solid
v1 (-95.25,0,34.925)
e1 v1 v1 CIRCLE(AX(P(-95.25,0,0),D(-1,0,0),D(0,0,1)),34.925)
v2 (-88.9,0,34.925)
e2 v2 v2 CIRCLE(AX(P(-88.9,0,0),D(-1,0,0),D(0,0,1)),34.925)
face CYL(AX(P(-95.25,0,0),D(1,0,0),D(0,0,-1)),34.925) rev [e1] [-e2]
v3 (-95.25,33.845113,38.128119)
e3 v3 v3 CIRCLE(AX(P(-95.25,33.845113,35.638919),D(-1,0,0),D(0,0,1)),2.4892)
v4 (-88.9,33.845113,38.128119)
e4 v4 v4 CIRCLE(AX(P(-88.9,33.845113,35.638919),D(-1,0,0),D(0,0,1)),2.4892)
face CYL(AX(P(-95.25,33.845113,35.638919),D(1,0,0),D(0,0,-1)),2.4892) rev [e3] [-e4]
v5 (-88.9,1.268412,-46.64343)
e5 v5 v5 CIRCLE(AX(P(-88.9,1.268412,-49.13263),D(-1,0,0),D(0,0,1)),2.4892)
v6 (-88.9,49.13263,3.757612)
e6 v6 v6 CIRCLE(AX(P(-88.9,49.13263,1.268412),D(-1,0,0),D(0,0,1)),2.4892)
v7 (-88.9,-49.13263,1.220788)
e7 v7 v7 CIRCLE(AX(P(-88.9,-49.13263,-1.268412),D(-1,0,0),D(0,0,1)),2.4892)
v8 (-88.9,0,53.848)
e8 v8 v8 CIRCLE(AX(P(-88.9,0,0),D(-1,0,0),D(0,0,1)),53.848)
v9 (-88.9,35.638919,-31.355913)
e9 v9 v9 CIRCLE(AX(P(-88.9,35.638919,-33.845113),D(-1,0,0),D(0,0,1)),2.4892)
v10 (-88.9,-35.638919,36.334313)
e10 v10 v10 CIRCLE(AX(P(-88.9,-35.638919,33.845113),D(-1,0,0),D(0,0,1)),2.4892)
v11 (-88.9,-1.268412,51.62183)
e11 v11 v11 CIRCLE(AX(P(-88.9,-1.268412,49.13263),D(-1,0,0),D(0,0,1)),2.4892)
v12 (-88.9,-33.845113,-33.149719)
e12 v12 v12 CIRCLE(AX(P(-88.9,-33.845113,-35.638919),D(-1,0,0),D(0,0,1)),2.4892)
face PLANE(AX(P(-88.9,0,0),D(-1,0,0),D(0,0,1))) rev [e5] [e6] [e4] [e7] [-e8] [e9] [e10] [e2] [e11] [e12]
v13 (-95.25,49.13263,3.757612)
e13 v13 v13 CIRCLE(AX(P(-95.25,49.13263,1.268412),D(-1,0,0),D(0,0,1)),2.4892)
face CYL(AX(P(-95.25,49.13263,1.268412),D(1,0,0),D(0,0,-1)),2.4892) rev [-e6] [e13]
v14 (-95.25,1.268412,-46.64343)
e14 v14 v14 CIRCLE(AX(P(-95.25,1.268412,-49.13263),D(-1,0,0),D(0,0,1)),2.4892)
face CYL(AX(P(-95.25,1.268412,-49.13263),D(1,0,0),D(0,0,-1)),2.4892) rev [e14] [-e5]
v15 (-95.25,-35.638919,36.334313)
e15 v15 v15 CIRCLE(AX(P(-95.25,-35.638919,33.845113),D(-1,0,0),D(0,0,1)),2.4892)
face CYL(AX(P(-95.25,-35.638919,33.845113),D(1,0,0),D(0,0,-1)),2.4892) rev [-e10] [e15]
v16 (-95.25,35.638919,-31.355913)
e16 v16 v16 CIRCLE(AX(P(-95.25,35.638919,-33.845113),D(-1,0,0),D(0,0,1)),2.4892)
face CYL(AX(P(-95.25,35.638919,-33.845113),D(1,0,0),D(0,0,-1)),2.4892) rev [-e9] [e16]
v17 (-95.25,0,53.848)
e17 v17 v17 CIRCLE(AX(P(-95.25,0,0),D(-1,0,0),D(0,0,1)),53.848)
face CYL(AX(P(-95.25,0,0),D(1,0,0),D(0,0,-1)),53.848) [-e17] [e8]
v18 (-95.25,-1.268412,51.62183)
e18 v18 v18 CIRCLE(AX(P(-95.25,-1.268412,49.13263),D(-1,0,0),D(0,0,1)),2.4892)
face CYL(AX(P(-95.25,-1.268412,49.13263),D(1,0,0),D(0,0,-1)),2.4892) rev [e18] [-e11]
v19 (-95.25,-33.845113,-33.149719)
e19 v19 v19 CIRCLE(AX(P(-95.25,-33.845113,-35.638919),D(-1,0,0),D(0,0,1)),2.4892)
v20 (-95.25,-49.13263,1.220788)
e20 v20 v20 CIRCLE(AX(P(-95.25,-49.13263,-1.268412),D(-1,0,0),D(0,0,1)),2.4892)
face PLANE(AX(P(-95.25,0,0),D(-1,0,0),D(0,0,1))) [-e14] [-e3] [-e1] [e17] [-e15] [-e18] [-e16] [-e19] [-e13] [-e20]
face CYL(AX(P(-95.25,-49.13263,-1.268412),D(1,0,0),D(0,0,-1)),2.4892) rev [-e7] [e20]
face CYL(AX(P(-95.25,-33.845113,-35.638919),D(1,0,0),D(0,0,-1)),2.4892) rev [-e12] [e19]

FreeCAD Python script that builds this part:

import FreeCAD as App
import Part
import Sketcher

V = App.Vector
Q = App.Units.Quantity

doc = App.newDocument("Part")
body = doc.addObject("PartDesign::Body", "Body")

sketch1 = doc.addObject("Sketcher::SketchObject", "Sketch")
body.addObject(sketch1)
sketch1.AttachmentSupport = (doc.YZ_Plane, [""])
sketch1.MapMode = "FlatFace"
sketch1.AttachmentOffset = App.Placement(V(0, 0, -3.5 * 25.4), App.Rotation())
sketch1.addGeometry(Part.Circle(V(0, 0, 0), V(0, 0, 1), 53.8), False)
sketch1.addGeometry(Part.Circle(V(-33.8, -35.6, 0), V(0, 0, 1), 2.5), False)
sketch1.addGeometry(Part.Circle(V(-49.1, -1.3, 0), V(0, 0, 1), 2.5), False)
sketch1.addGeometry(Part.Circle(V(-35.6, 33.8, 0), V(0, 0, 1), 2.5), False)
sketch1.addGeometry(Part.Circle(V(-1.3, 49.1, 0), V(0, 0, 1), 2.5), False)
sketch1.addGeometry(Part.Circle(V(1.3, -49.1, 0), V(0, 0, 1), 2.5), False)
sketch1.addGeometry(Part.Circle(V(35.6, -33.8, 0), V(0, 0, 1), 2.5), False)
sketch1.addGeometry(Part.Circle(V(0, 0, 0), V(0, 0, 1), 34.9), False)
sketch1.addGeometry(Part.Circle(V(49.1, 1.3, 0), V(0, 0, 1), 2.5), False)
sketch1.addGeometry(Part.Circle(V(33.8, 35.6, 0), V(0, 0, 1), 2.5), False)
sketch1.addConstraint(Sketcher.Constraint("Coincident", 0, 3, -1, 1))
sketch1.addConstraint(Sketcher.Constraint("Coincident", 7, 3, -1, 1))
sketch1.addConstraint(Sketcher.Constraint("Equal", 1, 2))
sketch1.addConstraint(Sketcher.Constraint("Equal", 2, 3))
sketch1.addConstraint(Sketcher.Constraint("Equal", 3, 4))
sketch1.addConstraint(Sketcher.Constraint("Equal", 4, 5))
sketch1.addConstraint(Sketcher.Constraint("Equal", 5, 6))
sketch1.addConstraint(Sketcher.Constraint("Equal", 6, 8))
sketch1.addConstraint(Sketcher.Constraint("Equal", 8, 9))
sketch1.addConstraint(Sketcher.Constraint("Symmetric", 4, 3, 5, 3, -1, 1))
sketch1.addConstraint(Sketcher.Constraint("Symmetric", 3, 3, 6, 3, -1, 1))
sketch1.addConstraint(Sketcher.Constraint("Symmetric", 2, 3, 8, 3, -1, 1))
sketch1.addConstraint(Sketcher.Constraint("Symmetric", 1, 3, 9, 3, -1, 1))
sketch1.addConstraint(Sketcher.Constraint("Diameter", 0, Q("4.24 in")))
sketch1.addConstraint(Sketcher.Constraint("Diameter", 7, Q("2.75 in")))
sketch1.addConstraint(Sketcher.Constraint("Diameter", 1, Q("0.196 in")))
sketch1.addConstraint(Sketcher.Constraint("DistanceX", 1, 3, 4, 3, Q("32.576701 mm")))
sketch1.addConstraint(Sketcher.Constraint("DistanceY", 6, 3, 2, 3, Q("32.576701 mm")))
sketch1.addConstraint(Sketcher.Constraint("DistanceY", 1, 3, -1, 1, Q("35.638919 mm")))
sketch1.addConstraint(Sketcher.Constraint("DistanceX", 2, 3, -1, 1, Q("49.13263 mm")))
sketch1.addConstraint(Sketcher.Constraint("DistanceY", 2, 3, -1, 1, Q("1.268412 mm")))
sketch1.addConstraint(Sketcher.Constraint("DistanceX", 3, 3, -1, 1, Q("35.638919 mm")))
sketch1.addConstraint(Sketcher.Constraint("DistanceX", 4, 3, -1, 1, Q("1.268412 mm")))
sketch1.addConstraint(Sketcher.Constraint("DistanceY", -1, 1, 4, 3, Q("49.13263 mm")))
pad1 = doc.addObject("PartDesign::Pad", "Pad")
body.addObject(pad1)
pad1.Profile = sketch1
pad1.Length = Q("0.25 in")
pad1.Reversed = True

doc.recompute()
